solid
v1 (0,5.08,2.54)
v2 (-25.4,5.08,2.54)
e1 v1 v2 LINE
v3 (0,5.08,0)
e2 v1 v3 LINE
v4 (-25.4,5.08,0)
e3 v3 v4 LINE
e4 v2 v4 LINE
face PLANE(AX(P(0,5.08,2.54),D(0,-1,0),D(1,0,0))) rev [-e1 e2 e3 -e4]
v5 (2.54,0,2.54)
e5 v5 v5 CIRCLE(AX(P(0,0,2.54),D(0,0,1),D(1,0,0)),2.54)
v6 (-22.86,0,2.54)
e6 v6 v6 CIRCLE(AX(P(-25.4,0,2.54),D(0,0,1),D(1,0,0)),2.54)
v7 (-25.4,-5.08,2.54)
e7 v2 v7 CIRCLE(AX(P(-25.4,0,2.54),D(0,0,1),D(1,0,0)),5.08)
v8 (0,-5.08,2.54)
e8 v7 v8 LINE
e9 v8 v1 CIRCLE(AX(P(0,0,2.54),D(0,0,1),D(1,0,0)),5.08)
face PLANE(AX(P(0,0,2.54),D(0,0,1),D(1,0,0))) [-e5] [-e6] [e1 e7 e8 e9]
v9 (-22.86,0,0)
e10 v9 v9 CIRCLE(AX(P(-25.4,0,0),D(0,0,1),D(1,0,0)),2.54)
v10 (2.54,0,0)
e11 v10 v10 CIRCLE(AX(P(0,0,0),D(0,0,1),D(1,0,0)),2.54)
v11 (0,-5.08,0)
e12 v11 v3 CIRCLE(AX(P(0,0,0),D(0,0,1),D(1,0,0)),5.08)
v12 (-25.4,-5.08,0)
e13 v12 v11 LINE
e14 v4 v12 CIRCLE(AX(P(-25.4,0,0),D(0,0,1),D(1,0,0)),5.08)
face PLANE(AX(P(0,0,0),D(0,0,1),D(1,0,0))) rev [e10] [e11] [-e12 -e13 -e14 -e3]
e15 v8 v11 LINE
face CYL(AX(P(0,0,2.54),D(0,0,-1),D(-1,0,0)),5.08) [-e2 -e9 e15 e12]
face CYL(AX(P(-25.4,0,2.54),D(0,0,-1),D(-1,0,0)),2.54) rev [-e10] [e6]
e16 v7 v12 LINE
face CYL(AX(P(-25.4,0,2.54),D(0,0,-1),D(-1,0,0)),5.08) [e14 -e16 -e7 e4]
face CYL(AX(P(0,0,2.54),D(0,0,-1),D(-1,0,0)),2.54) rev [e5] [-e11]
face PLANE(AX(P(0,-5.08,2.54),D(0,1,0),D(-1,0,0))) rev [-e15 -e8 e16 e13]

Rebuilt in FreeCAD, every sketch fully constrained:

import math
import FreeCAD as App
import Part
import Sketcher
from FreeCAD import Vector
Q = App.Units.Quantity

doc = App.newDocument("Part")
params = doc.addObject("Spreadsheet::Sheet", "Params")
for row, (alias, value) in enumerate([
    ("sketch1_diameter", "0.2 in"),
    ("sketch1_radius", "0.2 in"),
    ("sketch1_width", "1 in"),
    ("pad1_length", "0.1 in"),
], start=1):
    params.set(f"A{row}", alias)
    params.set(f"B{row}", "=" + value)
    params.setAlias(f"B{row}", alias)

body = doc.addObject("PartDesign::Body", "Body")

# Sketch on XY plane
sketch1 = body.newObject("Sketcher::SketchObject", "Sketch")
sketch1.AttachmentSupport = (doc.getObject("XY_Plane"), [""])
sketch1.MapMode = "FlatFace"
sketch1.addGeometry([
    Part.LineSegment(Vector(-25.4, -5.1, 0), Vector(0, -5.1, 0)),  # 0
    Part.ArcOfCircle(Part.Circle(Vector(0, 0, 0), Vector(0, 0, 1), 5.1), math.radians(-90), math.radians(90)),  # 1
    Part.LineSegment(Vector(0, 5.1, 0), Vector(-25.4, 5.1, 0)),  # 2
    Part.ArcOfCircle(Part.Circle(Vector(-25.4, 0, 0), Vector(0, 0, 1), 5.1), math.radians(90), math.radians(270)),  # 3
    Part.Circle(Vector(0, 0, 0), Vector(0, 0, 1), 2.5),  # 4
    Part.Circle(Vector(-25.4, 0, 0), Vector(0, 0, 1), 2.5),  # 5
], False)
sketch1.addConstraint([
    Sketcher.Constraint("Tangent", 0, 2, 1, 1),
    Sketcher.Constraint("Tangent", 1, 2, 2, 1),
    Sketcher.Constraint("Tangent", 2, 2, 3, 1),
    Sketcher.Constraint("Tangent", 3, 2, 0, 1),
    Sketcher.Constraint("Horizontal", 0),
    Sketcher.Constraint("Horizontal", 2),
    Sketcher.Constraint("Coincident", 1, 3, -1, 1),
    Sketcher.Constraint("Coincident", 4, 3, -1, 1),
    Sketcher.Constraint("Coincident", 5, 3, 3, 3),
    Sketcher.Constraint("Equal", 4, 5),
    Sketcher.Constraint("Diameter", 4, Q("0.2 in")),
    Sketcher.Constraint("Radius", 1, Q("0.2 in")),
    Sketcher.Constraint("DistanceX", 0, 1, 0, 2, Q("1 in")),
])
sketch1.setExpression("Constraints[10]", "Params.sketch1_diameter")
sketch1.setExpression("Constraints[11]", "Params.sketch1_radius")
sketch1.setExpression("Constraints[12]", "Params.sketch1_width")
pad1 = body.newObject("PartDesign::Pad", "Pad")
pad1.Profile = sketch1
pad1.setExpression("Length", "Params.pad1_length")

doc.recompute()
